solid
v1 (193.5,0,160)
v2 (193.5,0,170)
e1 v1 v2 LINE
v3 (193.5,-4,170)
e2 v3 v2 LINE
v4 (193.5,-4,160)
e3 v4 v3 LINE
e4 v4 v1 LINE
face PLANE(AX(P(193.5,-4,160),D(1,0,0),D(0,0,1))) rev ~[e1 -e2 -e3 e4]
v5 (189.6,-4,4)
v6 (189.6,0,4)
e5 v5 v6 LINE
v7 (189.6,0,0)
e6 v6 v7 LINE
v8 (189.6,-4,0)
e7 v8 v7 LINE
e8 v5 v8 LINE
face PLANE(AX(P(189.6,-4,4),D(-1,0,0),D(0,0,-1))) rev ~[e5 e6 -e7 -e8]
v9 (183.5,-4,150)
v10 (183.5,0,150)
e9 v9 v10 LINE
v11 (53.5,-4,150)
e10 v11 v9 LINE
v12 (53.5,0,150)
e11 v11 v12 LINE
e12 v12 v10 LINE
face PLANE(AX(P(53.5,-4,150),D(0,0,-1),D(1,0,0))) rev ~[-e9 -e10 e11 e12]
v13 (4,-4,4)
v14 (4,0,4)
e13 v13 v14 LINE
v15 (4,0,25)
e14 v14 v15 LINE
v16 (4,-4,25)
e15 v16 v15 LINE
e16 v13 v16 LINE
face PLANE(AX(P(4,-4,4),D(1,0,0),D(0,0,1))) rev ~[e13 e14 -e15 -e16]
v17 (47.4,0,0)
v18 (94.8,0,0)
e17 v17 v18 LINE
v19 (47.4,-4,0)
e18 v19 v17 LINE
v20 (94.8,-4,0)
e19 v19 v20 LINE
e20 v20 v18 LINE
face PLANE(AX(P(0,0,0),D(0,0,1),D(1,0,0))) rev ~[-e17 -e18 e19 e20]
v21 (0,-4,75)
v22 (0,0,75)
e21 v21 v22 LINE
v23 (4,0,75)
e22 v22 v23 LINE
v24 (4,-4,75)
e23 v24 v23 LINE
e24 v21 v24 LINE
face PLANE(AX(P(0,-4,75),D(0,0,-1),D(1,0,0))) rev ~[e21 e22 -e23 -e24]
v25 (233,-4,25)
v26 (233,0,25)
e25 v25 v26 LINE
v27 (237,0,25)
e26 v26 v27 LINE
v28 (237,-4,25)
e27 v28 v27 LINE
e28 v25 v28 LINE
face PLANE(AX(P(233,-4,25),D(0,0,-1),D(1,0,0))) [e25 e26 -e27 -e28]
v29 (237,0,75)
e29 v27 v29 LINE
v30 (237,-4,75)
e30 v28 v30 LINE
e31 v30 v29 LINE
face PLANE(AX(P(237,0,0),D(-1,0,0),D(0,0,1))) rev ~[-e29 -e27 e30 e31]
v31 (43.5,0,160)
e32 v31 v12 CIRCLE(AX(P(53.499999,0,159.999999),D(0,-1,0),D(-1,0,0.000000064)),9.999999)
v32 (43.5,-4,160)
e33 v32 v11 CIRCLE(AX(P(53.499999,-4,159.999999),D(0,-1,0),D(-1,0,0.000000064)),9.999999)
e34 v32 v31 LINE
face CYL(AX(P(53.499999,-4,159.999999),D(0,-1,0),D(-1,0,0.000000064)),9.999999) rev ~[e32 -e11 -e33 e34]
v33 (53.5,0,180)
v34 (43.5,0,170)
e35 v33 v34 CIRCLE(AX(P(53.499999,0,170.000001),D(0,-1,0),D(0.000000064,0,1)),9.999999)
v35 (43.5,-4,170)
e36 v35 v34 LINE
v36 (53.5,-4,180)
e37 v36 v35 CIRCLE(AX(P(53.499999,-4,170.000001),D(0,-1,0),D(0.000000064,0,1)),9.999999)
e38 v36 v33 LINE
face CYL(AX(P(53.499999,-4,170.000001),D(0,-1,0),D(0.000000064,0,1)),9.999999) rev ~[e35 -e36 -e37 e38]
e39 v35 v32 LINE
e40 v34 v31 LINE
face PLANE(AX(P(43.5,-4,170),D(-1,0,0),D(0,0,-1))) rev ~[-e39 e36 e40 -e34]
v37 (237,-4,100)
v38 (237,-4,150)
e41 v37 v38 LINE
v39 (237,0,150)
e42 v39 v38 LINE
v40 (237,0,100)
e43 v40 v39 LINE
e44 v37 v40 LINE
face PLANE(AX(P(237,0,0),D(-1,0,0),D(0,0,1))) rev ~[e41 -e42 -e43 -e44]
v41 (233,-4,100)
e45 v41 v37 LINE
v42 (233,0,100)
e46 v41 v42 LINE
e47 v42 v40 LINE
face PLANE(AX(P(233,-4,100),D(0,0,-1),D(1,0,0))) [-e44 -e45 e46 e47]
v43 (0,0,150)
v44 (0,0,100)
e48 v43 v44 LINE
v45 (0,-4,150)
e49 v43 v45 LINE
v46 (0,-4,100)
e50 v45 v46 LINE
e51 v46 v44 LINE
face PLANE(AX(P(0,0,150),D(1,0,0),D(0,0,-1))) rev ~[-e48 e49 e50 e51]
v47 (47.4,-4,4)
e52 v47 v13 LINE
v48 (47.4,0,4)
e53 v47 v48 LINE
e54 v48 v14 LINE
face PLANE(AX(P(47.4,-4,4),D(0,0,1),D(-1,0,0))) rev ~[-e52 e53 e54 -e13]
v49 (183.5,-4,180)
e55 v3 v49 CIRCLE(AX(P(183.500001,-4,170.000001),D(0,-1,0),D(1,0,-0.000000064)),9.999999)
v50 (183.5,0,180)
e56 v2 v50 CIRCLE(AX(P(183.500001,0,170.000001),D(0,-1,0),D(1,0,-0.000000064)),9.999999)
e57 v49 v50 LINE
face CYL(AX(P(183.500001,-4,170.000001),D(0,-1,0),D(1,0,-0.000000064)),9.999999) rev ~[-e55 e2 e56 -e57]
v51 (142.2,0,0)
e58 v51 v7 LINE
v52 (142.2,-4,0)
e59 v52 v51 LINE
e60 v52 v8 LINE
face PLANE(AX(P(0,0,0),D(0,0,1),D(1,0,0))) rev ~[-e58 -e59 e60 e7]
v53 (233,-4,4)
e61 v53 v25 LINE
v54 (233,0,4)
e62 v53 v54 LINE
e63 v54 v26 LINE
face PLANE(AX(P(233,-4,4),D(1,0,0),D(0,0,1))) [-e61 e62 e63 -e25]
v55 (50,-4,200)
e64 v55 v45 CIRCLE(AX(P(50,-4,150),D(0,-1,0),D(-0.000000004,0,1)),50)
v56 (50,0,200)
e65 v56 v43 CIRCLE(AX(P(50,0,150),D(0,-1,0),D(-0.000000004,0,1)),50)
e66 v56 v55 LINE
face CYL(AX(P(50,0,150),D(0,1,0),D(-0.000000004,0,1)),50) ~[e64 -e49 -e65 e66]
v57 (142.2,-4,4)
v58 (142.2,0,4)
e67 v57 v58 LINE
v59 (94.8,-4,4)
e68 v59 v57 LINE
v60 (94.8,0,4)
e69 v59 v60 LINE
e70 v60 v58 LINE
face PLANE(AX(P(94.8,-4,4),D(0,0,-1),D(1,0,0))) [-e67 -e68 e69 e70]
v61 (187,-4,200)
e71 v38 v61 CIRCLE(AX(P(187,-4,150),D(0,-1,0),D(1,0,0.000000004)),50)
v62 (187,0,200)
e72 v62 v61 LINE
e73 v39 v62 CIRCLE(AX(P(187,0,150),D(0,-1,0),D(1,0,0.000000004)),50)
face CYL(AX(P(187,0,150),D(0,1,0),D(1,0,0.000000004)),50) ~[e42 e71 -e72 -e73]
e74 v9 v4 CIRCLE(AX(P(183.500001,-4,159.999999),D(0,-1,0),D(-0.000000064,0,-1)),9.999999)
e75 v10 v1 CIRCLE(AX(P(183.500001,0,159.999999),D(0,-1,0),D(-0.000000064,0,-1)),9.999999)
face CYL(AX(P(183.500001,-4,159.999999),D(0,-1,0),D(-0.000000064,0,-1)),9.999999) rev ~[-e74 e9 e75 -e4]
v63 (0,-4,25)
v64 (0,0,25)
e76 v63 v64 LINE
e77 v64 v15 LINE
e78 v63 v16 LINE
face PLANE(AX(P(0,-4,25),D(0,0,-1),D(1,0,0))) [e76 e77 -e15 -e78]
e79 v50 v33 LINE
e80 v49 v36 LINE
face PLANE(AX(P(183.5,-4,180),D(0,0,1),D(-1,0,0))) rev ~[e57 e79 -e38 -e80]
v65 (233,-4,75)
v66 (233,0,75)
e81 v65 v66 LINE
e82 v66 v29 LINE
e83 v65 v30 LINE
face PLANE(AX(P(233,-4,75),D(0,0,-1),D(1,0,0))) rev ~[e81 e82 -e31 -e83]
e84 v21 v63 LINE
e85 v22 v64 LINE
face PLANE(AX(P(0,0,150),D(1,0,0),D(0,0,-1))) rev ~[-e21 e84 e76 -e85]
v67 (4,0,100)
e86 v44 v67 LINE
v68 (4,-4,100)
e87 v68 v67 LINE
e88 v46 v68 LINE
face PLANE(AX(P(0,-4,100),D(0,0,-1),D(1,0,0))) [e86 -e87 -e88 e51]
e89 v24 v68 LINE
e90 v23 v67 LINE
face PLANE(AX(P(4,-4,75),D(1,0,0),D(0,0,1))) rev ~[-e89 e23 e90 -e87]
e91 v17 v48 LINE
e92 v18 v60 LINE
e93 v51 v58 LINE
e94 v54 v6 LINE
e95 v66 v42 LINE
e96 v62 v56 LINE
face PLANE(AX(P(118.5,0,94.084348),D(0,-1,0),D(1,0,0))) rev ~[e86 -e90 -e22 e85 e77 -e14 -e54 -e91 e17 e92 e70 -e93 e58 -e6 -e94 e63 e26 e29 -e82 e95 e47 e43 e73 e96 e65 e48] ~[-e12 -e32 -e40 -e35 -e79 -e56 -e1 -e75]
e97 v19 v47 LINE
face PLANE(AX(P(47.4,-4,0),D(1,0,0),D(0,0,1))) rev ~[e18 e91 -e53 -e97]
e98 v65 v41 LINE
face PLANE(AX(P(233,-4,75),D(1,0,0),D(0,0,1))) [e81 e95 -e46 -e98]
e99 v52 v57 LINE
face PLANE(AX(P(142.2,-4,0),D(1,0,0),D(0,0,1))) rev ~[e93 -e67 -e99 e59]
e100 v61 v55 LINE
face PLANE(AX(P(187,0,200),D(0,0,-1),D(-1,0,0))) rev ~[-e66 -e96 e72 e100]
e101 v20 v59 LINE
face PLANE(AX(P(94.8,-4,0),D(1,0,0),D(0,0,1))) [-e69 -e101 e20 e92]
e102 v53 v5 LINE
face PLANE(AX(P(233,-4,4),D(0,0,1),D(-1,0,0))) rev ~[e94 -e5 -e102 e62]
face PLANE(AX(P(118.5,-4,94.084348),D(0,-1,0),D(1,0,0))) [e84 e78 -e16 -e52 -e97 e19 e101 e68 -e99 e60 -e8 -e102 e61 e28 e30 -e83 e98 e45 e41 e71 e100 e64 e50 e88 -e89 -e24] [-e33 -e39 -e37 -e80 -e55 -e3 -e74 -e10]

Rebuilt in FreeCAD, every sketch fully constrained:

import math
import FreeCAD as App
import Part
import Sketcher

V = App.Vector
Q = App.Units.Quantity

doc = App.newDocument("Part")
body = doc.addObject("PartDesign::Body", "Body")

sketch1 = body.newObject("Sketcher::SketchObject", "Sketch")
sketch1.AttachmentSupport = (doc.getObject("XZ_Plane"), [""])
sketch1.MapMode = "FlatFace"
sketch1.addGeometry(Part.LineSegment(V(0, 150, 0), V(0, 0, 0)), False)
sketch1.addGeometry(Part.LineSegment(V(0, 0, 0), V(237, 0, 0)), False)
sketch1.addGeometry(Part.LineSegment(V(237, 0, 0), V(237, 150, 0)), False)
sketch1.addGeometry(Part.ArcOfCircle(Part.Circle(V(187, 150, 0), V(0, 0, 1), 50), math.radians(0), math.radians(90)), False)
sketch1.addGeometry(Part.LineSegment(V(187, 200, 0), V(50, 200, 0)), False)
sketch1.addGeometry(Part.ArcOfCircle(Part.Circle(V(50, 150, 0), V(0, 0, 1), 50), math.radians(90), math.radians(180)), False)
sketch1.addConstraint(Sketcher.Constraint("Coincident", 0, 2, 1, 1))
sketch1.addConstraint(Sketcher.Constraint("Coincident", 1, 2, 2, 1))
sketch1.addConstraint(Sketcher.Constraint("Tangent", 2, 2, 3, 1))
sketch1.addConstraint(Sketcher.Constraint("Tangent", 3, 2, 4, 1))
sketch1.addConstraint(Sketcher.Constraint("Tangent", 4, 2, 5, 1))
sketch1.addConstraint(Sketcher.Constraint("Tangent", 5, 2, 0, 1))
sketch1.addConstraint(Sketcher.Constraint("Vertical", 0))
sketch1.addConstraint(Sketcher.Constraint("Horizontal", 1))
sketch1.addConstraint(Sketcher.Constraint("Vertical", 2))
sketch1.addConstraint(Sketcher.Constraint("Horizontal", 4))
sketch1.addConstraint(Sketcher.Constraint("Coincident", 0, 2, -1, 1))
sketch1.addConstraint(Sketcher.Constraint("Equal", 3, 5))
sketch1.addConstraint(Sketcher.Constraint("Radius", 3, Q("50 mm")))
sketch1.addConstraint(Sketcher.Constraint("DistanceX", 1, 1, 1, 2, Q("237 mm")))
sketch1.addConstraint(Sketcher.Constraint("DistanceY", 0, 2, 0, 1, Q("150 mm")))
pad1 = body.newObject("PartDesign::Pad", "Pad")
pad1.Profile = sketch1
pad1.Length = 4

sketch2 = body.newObject("Sketcher::SketchObject", "Sketch001")
sketch2.AttachmentSupport = (doc.getObject("XZ_Plane"), [""])
sketch2.MapMode = "FlatFace"
sketch2.AttachmentOffset = App.Placement(V(0, 0, 4), App.Rotation())
sketch2.addGeometry(Part.LineSegment(V(0, 0, 0), V(47.4, 0, 0)), False)
sketch2.addGeometry(Part.LineSegment(V(47.4, 0, 0), V(47.4, 4, 0)), False)
sketch2.addGeometry(Part.LineSegment(V(47.4, 4, 0), V(4, 4, 0)), False)
sketch2.addGeometry(Part.LineSegment(V(4, 4, 0), V(4, 25, 0)), False)
sketch2.addGeometry(Part.LineSegment(V(4, 25, 0), V(0, 25, 0)), False)
sketch2.addGeometry(Part.LineSegment(V(0, 25, 0), V(0, 0, 0)), False)
sketch2.addGeometry(Part.LineSegment(V(189.6, 4, 0), V(189.6, 0, 0)), False)
sketch2.addGeometry(Part.LineSegment(V(189.6, 0, 0), V(237, 0, 0)), False)
sketch2.addGeometry(Part.LineSegment(V(237, 0, 0), V(237, 25, 0)), False)
sketch2.addGeometry(Part.LineSegment(V(237, 25, 0), V(233, 25, 0)), False)
sketch2.addGeometry(Part.LineSegment(V(233, 25, 0), V(233, 4, 0)), False)
sketch2.addGeometry(Part.LineSegment(V(233, 4, 0), V(189.6, 4, 0)), False)
sketch2.addGeometry(Part.LineSegment(V(94.8, 4, 0), V(94.8, 0, 0)), False)
sketch2.addGeometry(Part.LineSegment(V(94.8, 0, 0), V(142.2, 0, 0)), False)
sketch2.addGeometry(Part.LineSegment(V(142.2, 0, 0), V(142.2, 4, 0)), False)
sketch2.addGeometry(Part.LineSegment(V(142.2, 4, 0), V(94.8, 4, 0)), False)
sketch2.addGeometry(Part.LineSegment(V(0, 100, 0), V(0, 75, 0)), False)
sketch2.addGeometry(Part.LineSegment(V(0, 75, 0), V(4, 75, 0)), False)
sketch2.addGeometry(Part.LineSegment(V(4, 75, 0), V(4, 100, 0)), False)
sketch2.addGeometry(Part.LineSegment(V(4, 100, 0), V(0, 100, 0)), False)
sketch2.addGeometry(Part.LineSegment(V(233, 100, 0), V(233, 75, 0)), False)
sketch2.addGeometry(Part.LineSegment(V(233, 75, 0), V(237, 75, 0)), False)
sketch2.addGeometry(Part.LineSegment(V(237, 75, 0), V(237, 100, 0)), False)
sketch2.addGeometry(Part.LineSegment(V(237, 100, 0), V(233, 100, 0)), False)
sketch2.addConstraint(Sketcher.Constraint("Coincident", 0, 2, 1, 1))
sketch2.addConstraint(Sketcher.Constraint("Coincident", 1, 2, 2, 1))
sketch2.addConstraint(Sketcher.Constraint("Coincident", 2, 2, 3, 1))
sketch2.addConstraint(Sketcher.Constraint("Coincident", 3, 2, 4, 1))
sketch2.addConstraint(Sketcher.Constraint("Coincident", 4, 2, 5, 1))
sketch2.addConstraint(Sketcher.Constraint("Coincident", 5, 2, 0, 1))
sketch2.addConstraint(Sketcher.Constraint("Coincident", 6, 2, 7, 1))
sketch2.addConstraint(Sketcher.Constraint("Coincident", 7, 2, 8, 1))
sketch2.addConstraint(Sketcher.Constraint("Coincident", 8, 2, 9, 1))
sketch2.addConstraint(Sketcher.Constraint("Coincident", 9, 2, 10, 1))
sketch2.addConstraint(Sketcher.Constraint("Coincident", 10, 2, 11, 1))
sketch2.addConstraint(Sketcher.Constraint("Coincident", 11, 2, 6, 1))
sketch2.addConstraint(Sketcher.Constraint("Coincident", 12, 2, 13, 1))
sketch2.addConstraint(Sketcher.Constraint("Coincident", 13, 2, 14, 1))
sketch2.addConstraint(Sketcher.Constraint("Coincident", 14, 2, 15, 1))
sketch2.addConstraint(Sketcher.Constraint("Coincident", 15, 2, 12, 1))
sketch2.addConstraint(Sketcher.Constraint("Coincident", 16, 2, 17, 1))
sketch2.addConstraint(Sketcher.Constraint("Coincident", 17, 2, 18, 1))
sketch2.addConstraint(Sketcher.Constraint("Coincident", 18, 2, 19, 1))
sketch2.addConstraint(Sketcher.Constraint("Coincident", 19, 2, 16, 1))
sketch2.addConstraint(Sketcher.Constraint("Coincident", 20, 2, 21, 1))
sketch2.addConstraint(Sketcher.Constraint("Coincident", 21, 2, 22, 1))
sketch2.addConstraint(Sketcher.Constraint("Coincident", 22, 2, 23, 1))
sketch2.addConstraint(Sketcher.Constraint("Coincident", 23, 2, 20, 1))
sketch2.addConstraint(Sketcher.Constraint("Horizontal", 0))
sketch2.addConstraint(Sketcher.Constraint("Vertical", 1))
sketch2.addConstraint(Sketcher.Constraint("Horizontal", 2))
sketch2.addConstraint(Sketcher.Constraint("Vertical", 3))
sketch2.addConstraint(Sketcher.Constraint("Horizontal", 4))
sketch2.addConstraint(Sketcher.Constraint("Vertical", 5))
sketch2.addConstraint(Sketcher.Constraint("Vertical", 6))
sketch2.addConstraint(Sketcher.Constraint("Horizontal", 7))
sketch2.addConstraint(Sketcher.Constraint("Vertical", 8))
sketch2.addConstraint(Sketcher.Constraint("Horizontal", 9))
sketch2.addConstraint(Sketcher.Constraint("Vertical", 10))
sketch2.addConstraint(Sketcher.Constraint("Horizontal", 11))
sketch2.addConstraint(Sketcher.Constraint("Vertical", 12))
sketch2.addConstraint(Sketcher.Constraint("Horizontal", 13))
sketch2.addConstraint(Sketcher.Constraint("Vertical", 14))
sketch2.addConstraint(Sketcher.Constraint("Horizontal", 15))
sketch2.addConstraint(Sketcher.Constraint("Vertical", 16))
sketch2.addConstraint(Sketcher.Constraint("Horizontal", 17))
sketch2.addConstraint(Sketcher.Constraint("Vertical", 18))
sketch2.addConstraint(Sketcher.Constraint("Horizontal", 19))
sketch2.addConstraint(Sketcher.Constraint("Vertical", 20))
sketch2.addConstraint(Sketcher.Constraint("Horizontal", 21))
sketch2.addConstraint(Sketcher.Constraint("Vertical", 22))
sketch2.addConstraint(Sketcher.Constraint("Horizontal", 23))
sketch2.addConstraint(Sketcher.Constraint("Coincident", 5, 2, -1, 1))
sketch2.addConstraint(Sketcher.Constraint("PointOnObject", 6, 2, -1))
sketch2.addConstraint(Sketcher.Constraint("PointOnObject", 12, 2, -1))
sketch2.addConstraint(Sketcher.Constraint("PointOnObject", 16, 2, -2))
sketch2.addConstraint(Sketcher.Constraint("Horizontal", 4, 2, 8, 2))
sketch2.addConstraint(Sketcher.Constraint("Horizontal", 2, 2, 10, 2))
sketch2.addConstraint(Sketcher.Constraint("Horizontal", 11, 2, 14, 2))
sketch2.addConstraint(Sketcher.Constraint("Horizontal", 17, 2, 20, 2))
sketch2.addConstraint(Sketcher.Constraint("Horizontal", 19, 2, 22, 2))
sketch2.addConstraint(Sketcher.Constraint("Vertical", 3, 2, 17, 2))
sketch2.addConstraint(Sketcher.Constraint("Vertical", 10, 2, 20, 2))
sketch2.addConstraint(Sketcher.Constraint("Vertical", 8, 2, 21, 2))
sketch2.addConstraint(Sketcher.Constraint("Equal", 0, 7))
sketch2.addConstraint(Sketcher.Constraint("Equal", 4, 9))
sketch2.addConstraint(Sketcher.Constraint("Equal", 7, 13))
sketch2.addConstraint(Sketcher.Constraint("Equal", 23, 1))
sketch2.addConstraint(Sketcher.Constraint("Equal", 8, 16))
sketch2.addConstraint(Sketcher.Constraint("DistanceX", 4, 2, 4, 1, Q("4 mm")))
sketch2.addConstraint(Sketcher.Constraint("DistanceY", 3, 1, 3, 2, Q("21 mm")))
sketch2.addConstraint(Sketcher.Constraint("DistanceX", 0, 1, 0, 2, Q("47.4 mm")))
sketch2.addConstraint(Sketcher.Constraint("DistanceX", -1, 1, 7, 2, Q("237 mm")))
sketch2.addConstraint(Sketcher.Constraint("DistanceY", -1, 1, 16, 2, Q("75 mm")))
sketch2.addConstraint(Sketcher.Constraint("DistanceX", -1, 1, 12, 2, Q("94.8 mm")))
pocket1 = body.newObject("PartDesign::Pocket", "Pocket")
pocket1.Profile = sketch2
pocket1.Type = "ThroughAll"

sketch3 = body.newObject("Sketcher::SketchObject", "Sketch002")
sketch3.AttachmentSupport = (doc.getObject("XZ_Plane"), [""])
sketch3.MapMode = "FlatFace"
sketch3.AttachmentOffset = App.Placement(V(0, 0, 4), App.Rotation())
sketch3.addGeometry(Part.LineSegment(V(184, 180, 0), V(54, 180, 0)), False)
sketch3.addGeometry(Part.ArcOfCircle(Part.Circle(V(53, 170, 0), V(0, 0, 1), 10), math.radians(90), math.radians(180)), False)
sketch3.addGeometry(Part.LineSegment(V(44, 170, 0), V(44, 160, 0)), False)
sketch3.addGeometry(Part.ArcOfCircle(Part.Circle(V(53, 160, 0), V(0, 0, 1), 10), math.radians(180), math.radians(270)), False)
sketch3.addGeometry(Part.LineSegment(V(54, 150, 0), V(184, 150, 0)), False)
sketch3.addGeometry(Part.ArcOfCircle(Part.Circle(V(184, 160, 0), V(0, 0, 1), 10), math.radians(-90), math.radians(0)), False)
sketch3.addGeometry(Part.LineSegment(V(194, 160, 0), V(194, 170, 0)), False)
sketch3.addGeometry(Part.ArcOfCircle(Part.Circle(V(184, 170, 0), V(0, 0, 1), 10), math.radians(0), math.radians(90)), False)
sketch3.addConstraint(Sketcher.Constraint("Tangent", 0, 2, 1, 1))
sketch3.addConstraint(Sketcher.Constraint("Tangent", 1, 2, 2, 1))
sketch3.addConstraint(Sketcher.Constraint("Tangent", 2, 2, 3, 1))
sketch3.addConstraint(Sketcher.Constraint("Tangent", 3, 2, 4, 1))
sketch3.addConstraint(Sketcher.Constraint("Tangent", 4, 2, 5, 1))
sketch3.addConstraint(Sketcher.Constraint("Tangent", 5, 2, 6, 1))
sketch3.addConstraint(Sketcher.Constraint("Tangent", 6, 2, 7, 1))
sketch3.addConstraint(Sketcher.Constraint("Tangent", 7, 2, 0, 1))
sketch3.addConstraint(Sketcher.Constraint("Horizontal", 0))
sketch3.addConstraint(Sketcher.Constraint("Vertical", 2))
sketch3.addConstraint(Sketcher.Constraint("Horizontal", 4))
sketch3.addConstraint(Sketcher.Constraint("Vertical", 6))
sketch3.addConstraint(Sketcher.Constraint("Equal", 1, 3))
sketch3.addConstraint(Sketcher.Constraint("Equal", 3, 5))
sketch3.addConstraint(Sketcher.Constraint("Equal", 5, 7))
sketch3.addConstraint(Sketcher.Constraint("Radius", 1, Q("9.999999 mm")))
sketch3.addConstraint(Sketcher.Constraint("DistanceX", 0, 2, 0, 1, Q("130 mm")))
sketch3.addConstraint(Sketcher.Constraint("DistanceY", 2, 2, 2, 1, Q("10 mm")))
sketch3.addConstraint(Sketcher.Constraint("DistanceY", -1, 1, 1, 3, Q("170.000001 mm")))
sketch3.addConstraint(Sketcher.Constraint("DistanceX", -1, 1, 1, 3, Q("53.499999 mm")))
pocket2 = body.newObject("PartDesign::Pocket", "Pocket001")
pocket2.Profile = sketch3
pocket2.Type = "ThroughAll"

doc.recompute()
